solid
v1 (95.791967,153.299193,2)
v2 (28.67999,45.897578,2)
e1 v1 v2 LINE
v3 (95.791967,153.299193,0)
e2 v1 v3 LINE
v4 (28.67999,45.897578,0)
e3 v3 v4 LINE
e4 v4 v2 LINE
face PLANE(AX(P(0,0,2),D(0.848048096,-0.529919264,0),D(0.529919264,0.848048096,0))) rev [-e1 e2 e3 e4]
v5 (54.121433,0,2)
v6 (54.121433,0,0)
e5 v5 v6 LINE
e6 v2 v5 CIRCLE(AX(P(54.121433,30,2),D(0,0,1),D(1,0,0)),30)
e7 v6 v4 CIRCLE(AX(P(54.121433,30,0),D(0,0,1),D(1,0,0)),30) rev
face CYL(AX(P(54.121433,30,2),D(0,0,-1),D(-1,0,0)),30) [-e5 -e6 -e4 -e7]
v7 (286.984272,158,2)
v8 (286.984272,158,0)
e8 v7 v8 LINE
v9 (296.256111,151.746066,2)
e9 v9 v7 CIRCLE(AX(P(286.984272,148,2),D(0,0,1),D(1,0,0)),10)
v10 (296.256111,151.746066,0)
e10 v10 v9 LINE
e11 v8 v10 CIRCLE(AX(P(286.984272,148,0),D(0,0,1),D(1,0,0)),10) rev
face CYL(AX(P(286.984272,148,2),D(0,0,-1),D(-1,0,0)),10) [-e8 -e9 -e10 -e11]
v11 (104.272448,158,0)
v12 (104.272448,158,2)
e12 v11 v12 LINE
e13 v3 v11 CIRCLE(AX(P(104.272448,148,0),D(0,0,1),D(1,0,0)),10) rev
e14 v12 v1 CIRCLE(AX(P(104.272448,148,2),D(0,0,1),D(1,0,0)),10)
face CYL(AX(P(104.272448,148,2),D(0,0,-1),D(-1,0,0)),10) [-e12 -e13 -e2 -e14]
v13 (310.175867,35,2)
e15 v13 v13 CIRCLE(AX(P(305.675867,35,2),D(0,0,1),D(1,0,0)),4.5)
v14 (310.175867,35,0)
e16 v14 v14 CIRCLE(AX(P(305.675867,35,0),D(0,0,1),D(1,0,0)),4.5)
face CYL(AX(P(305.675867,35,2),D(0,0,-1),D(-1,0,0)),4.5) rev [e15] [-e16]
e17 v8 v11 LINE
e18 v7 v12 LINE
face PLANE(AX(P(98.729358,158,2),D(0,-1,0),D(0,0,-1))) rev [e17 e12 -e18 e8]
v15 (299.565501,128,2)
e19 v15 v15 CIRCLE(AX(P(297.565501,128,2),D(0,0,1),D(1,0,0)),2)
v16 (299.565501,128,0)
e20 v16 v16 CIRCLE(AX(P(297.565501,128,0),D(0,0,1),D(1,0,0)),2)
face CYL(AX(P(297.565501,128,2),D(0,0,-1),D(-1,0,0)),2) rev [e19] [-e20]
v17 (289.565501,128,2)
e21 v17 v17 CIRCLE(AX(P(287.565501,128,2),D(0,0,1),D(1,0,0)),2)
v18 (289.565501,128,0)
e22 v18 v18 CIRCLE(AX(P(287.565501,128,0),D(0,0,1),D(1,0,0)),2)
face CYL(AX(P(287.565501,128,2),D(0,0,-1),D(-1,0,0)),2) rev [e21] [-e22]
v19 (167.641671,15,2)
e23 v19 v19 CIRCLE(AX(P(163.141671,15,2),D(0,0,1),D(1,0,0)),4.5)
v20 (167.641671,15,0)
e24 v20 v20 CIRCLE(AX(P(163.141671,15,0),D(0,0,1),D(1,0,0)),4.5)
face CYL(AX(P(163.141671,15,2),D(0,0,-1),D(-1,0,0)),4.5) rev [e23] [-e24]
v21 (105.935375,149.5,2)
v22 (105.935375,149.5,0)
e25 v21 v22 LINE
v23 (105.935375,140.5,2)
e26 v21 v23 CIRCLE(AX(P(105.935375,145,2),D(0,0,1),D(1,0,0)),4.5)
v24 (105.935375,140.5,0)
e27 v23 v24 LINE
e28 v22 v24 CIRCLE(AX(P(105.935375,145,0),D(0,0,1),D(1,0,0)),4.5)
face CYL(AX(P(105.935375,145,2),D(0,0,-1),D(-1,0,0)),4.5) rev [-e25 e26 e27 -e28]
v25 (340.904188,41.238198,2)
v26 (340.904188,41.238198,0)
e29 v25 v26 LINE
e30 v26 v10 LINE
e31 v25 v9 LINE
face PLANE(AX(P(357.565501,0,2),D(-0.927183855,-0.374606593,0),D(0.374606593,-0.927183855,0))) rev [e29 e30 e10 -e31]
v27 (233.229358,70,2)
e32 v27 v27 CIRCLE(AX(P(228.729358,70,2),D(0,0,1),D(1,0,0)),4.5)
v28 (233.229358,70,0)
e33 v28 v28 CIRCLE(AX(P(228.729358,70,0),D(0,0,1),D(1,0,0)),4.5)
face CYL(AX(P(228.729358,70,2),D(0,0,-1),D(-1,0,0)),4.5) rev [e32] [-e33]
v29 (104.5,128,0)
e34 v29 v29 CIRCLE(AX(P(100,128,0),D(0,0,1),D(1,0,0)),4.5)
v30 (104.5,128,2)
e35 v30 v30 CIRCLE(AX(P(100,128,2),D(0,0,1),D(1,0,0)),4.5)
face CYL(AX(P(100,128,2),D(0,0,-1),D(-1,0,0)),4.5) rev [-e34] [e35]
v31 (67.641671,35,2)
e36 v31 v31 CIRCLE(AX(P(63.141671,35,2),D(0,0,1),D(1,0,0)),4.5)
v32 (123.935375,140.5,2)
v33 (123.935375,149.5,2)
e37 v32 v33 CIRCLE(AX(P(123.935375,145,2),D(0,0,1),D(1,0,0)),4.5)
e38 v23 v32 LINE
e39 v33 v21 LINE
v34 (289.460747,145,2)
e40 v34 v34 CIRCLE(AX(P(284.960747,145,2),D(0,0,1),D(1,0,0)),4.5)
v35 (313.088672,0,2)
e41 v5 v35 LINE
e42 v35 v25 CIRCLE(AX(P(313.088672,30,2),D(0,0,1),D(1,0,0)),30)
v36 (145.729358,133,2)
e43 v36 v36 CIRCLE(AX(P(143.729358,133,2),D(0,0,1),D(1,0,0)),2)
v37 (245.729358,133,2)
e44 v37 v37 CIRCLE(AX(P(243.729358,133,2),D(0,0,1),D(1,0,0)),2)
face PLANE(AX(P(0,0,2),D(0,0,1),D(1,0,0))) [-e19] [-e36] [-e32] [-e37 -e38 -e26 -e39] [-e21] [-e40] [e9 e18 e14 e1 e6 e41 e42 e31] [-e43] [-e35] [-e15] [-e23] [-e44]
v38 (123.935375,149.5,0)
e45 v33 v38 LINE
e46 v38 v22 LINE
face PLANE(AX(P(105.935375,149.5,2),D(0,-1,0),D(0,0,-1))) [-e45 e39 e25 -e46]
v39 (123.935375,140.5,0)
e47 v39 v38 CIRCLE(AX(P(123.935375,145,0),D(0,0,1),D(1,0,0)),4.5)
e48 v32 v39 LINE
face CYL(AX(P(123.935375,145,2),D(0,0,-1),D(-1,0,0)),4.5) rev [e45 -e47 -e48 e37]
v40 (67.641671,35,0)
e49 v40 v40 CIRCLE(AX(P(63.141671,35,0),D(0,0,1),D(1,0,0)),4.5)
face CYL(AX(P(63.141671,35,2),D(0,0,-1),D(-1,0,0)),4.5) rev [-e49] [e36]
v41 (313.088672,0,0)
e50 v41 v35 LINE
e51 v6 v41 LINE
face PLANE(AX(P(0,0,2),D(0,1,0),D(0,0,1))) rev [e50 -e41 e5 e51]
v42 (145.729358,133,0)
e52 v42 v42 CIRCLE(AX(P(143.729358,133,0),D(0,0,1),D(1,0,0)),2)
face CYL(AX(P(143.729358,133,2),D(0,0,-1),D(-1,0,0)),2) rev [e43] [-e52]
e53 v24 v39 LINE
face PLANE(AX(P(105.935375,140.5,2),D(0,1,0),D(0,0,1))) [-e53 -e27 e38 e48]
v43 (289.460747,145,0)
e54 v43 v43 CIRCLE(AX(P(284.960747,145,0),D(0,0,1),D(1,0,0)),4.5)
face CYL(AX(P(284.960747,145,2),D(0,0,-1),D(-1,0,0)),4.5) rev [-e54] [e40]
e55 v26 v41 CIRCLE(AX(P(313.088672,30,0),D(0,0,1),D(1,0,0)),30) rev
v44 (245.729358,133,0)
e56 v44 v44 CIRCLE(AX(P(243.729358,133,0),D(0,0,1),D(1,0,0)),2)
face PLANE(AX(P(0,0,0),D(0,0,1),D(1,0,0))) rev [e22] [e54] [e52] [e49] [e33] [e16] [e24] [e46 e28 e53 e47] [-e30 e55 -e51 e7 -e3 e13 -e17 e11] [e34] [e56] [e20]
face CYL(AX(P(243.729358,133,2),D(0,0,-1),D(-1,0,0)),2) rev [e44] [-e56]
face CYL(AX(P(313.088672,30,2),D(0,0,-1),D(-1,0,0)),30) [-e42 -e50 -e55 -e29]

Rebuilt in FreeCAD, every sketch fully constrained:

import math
import FreeCAD as App
import Part
import Sketcher

V = App.Vector
Q = App.Units.Quantity


def edges_at(feature, points):
    """Names of the edges that pass closest to the given points."""
    edges = feature.Shape.Edges
    near = lambda p: min(range(len(edges)), key=lambda i: edges[i].distToShape(Part.Vertex(*p))[0])
    return sorted({f"Edge{near(p) + 1}" for p in points})


def add_polygon(sketch, points):
    """Adds a closed chain of lines whose ends are joined by coincident constraints."""
    first, n = sketch.GeometryCount, len(points)
    for a, b in zip(points, points[1:] + points[:1]):
        sketch.addGeometry(Part.LineSegment(App.Vector(*a, 0), App.Vector(*b, 0)), False)
    for i in range(n):
        sketch.addConstraint(Sketcher.Constraint("Coincident", first + i, 2, first + (i + 1) % n, 1))

doc = App.newDocument("Part")
params = doc.addObject("Spreadsheet::Sheet", "Params")
for row, (alias, value) in enumerate([
    ("sketch1_diameter", "9 mm"),
    ("sketch1_diameter2", "4 mm"),
    ("sketch1_width", "195 mm"),
    ("sketch1_width2", "18 mm"),
    ("pad1_length", "2 mm"),
    ("fillet_radius", "30 mm"),
    ("fillet2_radius", "10 mm"),
], start=1):
    params.set(f"A{row}", alias)
    params.set(f"B{row}", "=" + value)
    params.setAlias(f"B{row}", alias)

body = doc.addObject("PartDesign::Body", "Body")

sketch1 = body.newObject("Sketcher::SketchObject", "Sketch")
sketch1.AttachmentSupport = (doc.getObject("XY_Plane"), [""])
sketch1.MapMode = "FlatFace"
add_polygon(sketch1, [(98.7, 158), (0, 0), (357.6, 0), (293.7, 158)])
sketch1.addGeometry(Part.Circle(V(305.7, 35, 0), V(0, 0, 1), 4.5), False)
sketch1.addGeometry(Part.Circle(V(228.7, 70, 0), V(0, 0, 1), 4.5), False)
sketch1.addGeometry(Part.Circle(V(163.1, 15, 0), V(0, 0, 1), 4.5), False)
sketch1.addGeometry(Part.Circle(V(63.1, 35, 0), V(0, 0, 1), 4.5), False)
sketch1.addGeometry(Part.Circle(V(297.6, 128, 0), V(0, 0, 1), 2), False)
sketch1.addGeometry(Part.Circle(V(287.6, 128, 0), V(0, 0, 1), 2), False)
sketch1.addGeometry(Part.Circle(V(285, 145, 0), V(0, 0, 1), 4.5), False)
sketch1.addGeometry(Part.Circle(V(243.7, 133, 0), V(0, 0, 1), 2), False)
sketch1.addGeometry(Part.Circle(V(143.7, 133, 0), V(0, 0, 1), 2), False)
sketch1.addGeometry(Part.Circle(V(100, 128, 0), V(0, 0, 1), 4.5), False)
sketch1.addGeometry(Part.LineSegment(V(105.9, 149.5, 0), V(123.9, 149.5, 0)), False)
sketch1.addGeometry(Part.ArcOfCircle(Part.Circle(V(123.9, 145, 0), V(0, 0, 1), 4.5), math.radians(-90), math.radians(90)), False)
sketch1.addGeometry(Part.LineSegment(V(123.9, 140.5, 0), V(105.9, 140.5, 0)), False)
sketch1.addGeometry(Part.ArcOfCircle(Part.Circle(V(105.9, 145, 0), V(0, 0, 1), 4.5), math.radians(90), math.radians(270)), False)
sketch1.addConstraint([
    Sketcher.Constraint("Tangent", 14, 2, 15, 2),
    Sketcher.Constraint("Tangent", 15, 1, 16, 1),
    Sketcher.Constraint("Tangent", 16, 2, 17, 2),
    Sketcher.Constraint("Tangent", 17, 1, 14, 1),
    Sketcher.Constraint("Horizontal", 1),
    Sketcher.Constraint("Horizontal", 3),
    Sketcher.Constraint("Horizontal", 14),
    Sketcher.Constraint("Horizontal", 16),
    Sketcher.Constraint("Coincident", 0, 2, -1, 1),
    Sketcher.Constraint("Equal", 4, 5),
    Sketcher.Constraint("Equal", 5, 6),
    Sketcher.Constraint("Equal", 6, 7),
    Sketcher.Constraint("Equal", 8, 9),
    Sketcher.Constraint("Equal", 7, 10),
    Sketcher.Constraint("Equal", 9, 11),
    Sketcher.Constraint("Equal", 11, 12),
    Sketcher.Constraint("Equal", 10, 13),
    Sketcher.Constraint("Equal", 13, 15),
    Sketcher.Constraint("Horizontal", 4, 3, 7, 3),
    Sketcher.Constraint("Horizontal", 8, 3, 9, 3),
    Sketcher.Constraint("Horizontal", 11, 3, 12, 3),
    Sketcher.Constraint("Horizontal", 9, 3, 13, 3),
    Sketcher.Constraint("Horizontal", 10, 3, 15, 3),
    Sketcher.Constraint("Diameter", 4, 9.0),
    Sketcher.Constraint("Diameter", 8, 4.0),
    Sketcher.Constraint("DistanceX", 3, 2, 3, 1, 195.0),
    Sketcher.Constraint("DistanceX", 14, 1, 14, 2, 18.0),
    Sketcher.Constraint("Angle", 0, Q("-122 deg")),
    Sketcher.Constraint("Angle", 2, Q("112 deg")),
    Sketcher.Constraint("DistanceY", -1, 1, 4, 3, 35.0),
    Sketcher.Constraint("DistanceY", -1, 1, 5, 3, 70.0),
    Sketcher.Constraint("DistanceY", -1, 1, 6, 3, 15.0),
    Sketcher.Constraint("DistanceY", -1, 1, 8, 3, 128.0),
    Sketcher.Constraint("DistanceY", -1, 1, 10, 3, 145.0),
    Sketcher.Constraint("DistanceY", -1, 1, 11, 3, 133.0),
    Sketcher.Constraint("DistanceX", -1, 1, 13, 3, 100.0),
    Sketcher.Constraint("DistanceY", -1, 1, 2, 2, 158.0),
    Sketcher.Constraint("DistanceX", 7, 3, 6, 3, 100.0),
    Sketcher.Constraint("DistanceX", 9, 3, 8, 3, 10.0),
    Sketcher.Constraint("DistanceX", 5, 3, 11, 3, 15.0),
    Sketcher.Constraint("DistanceX", 12, 3, 11, 3, 100.0),
    Sketcher.Constraint("DistanceX", 8, 3, 1, 2, 60.0),
    Sketcher.Constraint("DistanceX", 11, 3, 2, 2, 50.0),
    Sketcher.Constraint("DistanceX", -1, 1, 6, 3, 163.141671),
    Sketcher.Constraint("DistanceX", 5, 3, 4, 3, 76.94651),
    Sketcher.Constraint("DistanceX", 5, 3, 10, 3, 56.231389),
    Sketcher.Constraint("DistanceX", -1, 1, 15, 3, 123.935375),
])
sketch1.setExpression("Constraints[27]", "Params.sketch1_diameter")
sketch1.setExpression("Constraints[28]", "Params.sketch1_diameter2")
sketch1.setExpression("Constraints[29]", "Params.sketch1_width")
sketch1.setExpression("Constraints[30]", "Params.sketch1_width2")
pad1 = body.newObject("PartDesign::Pad", "Pad")
pad1.Profile = sketch1
pad1.setExpression("Length", "Params.pad1_length")
doc.recompute()

fillet = body.newObject("PartDesign::Fillet", "Fillet")
fillet.Base = (pad1, edges_at(pad1, [(0, 0, 1), (357.566, 0, 1)]))
fillet.setExpression("Radius", "Params.fillet_radius")
doc.recompute()

fillet2 = body.newObject("PartDesign::Fillet", "Fillet001")
fillet2.Base = (fillet, edges_at(fillet, [(98.729, 158, 1), (293.729, 158, 1)]))
fillet2.setExpression("Radius", "Params.fillet2_radius")

doc.recompute()
